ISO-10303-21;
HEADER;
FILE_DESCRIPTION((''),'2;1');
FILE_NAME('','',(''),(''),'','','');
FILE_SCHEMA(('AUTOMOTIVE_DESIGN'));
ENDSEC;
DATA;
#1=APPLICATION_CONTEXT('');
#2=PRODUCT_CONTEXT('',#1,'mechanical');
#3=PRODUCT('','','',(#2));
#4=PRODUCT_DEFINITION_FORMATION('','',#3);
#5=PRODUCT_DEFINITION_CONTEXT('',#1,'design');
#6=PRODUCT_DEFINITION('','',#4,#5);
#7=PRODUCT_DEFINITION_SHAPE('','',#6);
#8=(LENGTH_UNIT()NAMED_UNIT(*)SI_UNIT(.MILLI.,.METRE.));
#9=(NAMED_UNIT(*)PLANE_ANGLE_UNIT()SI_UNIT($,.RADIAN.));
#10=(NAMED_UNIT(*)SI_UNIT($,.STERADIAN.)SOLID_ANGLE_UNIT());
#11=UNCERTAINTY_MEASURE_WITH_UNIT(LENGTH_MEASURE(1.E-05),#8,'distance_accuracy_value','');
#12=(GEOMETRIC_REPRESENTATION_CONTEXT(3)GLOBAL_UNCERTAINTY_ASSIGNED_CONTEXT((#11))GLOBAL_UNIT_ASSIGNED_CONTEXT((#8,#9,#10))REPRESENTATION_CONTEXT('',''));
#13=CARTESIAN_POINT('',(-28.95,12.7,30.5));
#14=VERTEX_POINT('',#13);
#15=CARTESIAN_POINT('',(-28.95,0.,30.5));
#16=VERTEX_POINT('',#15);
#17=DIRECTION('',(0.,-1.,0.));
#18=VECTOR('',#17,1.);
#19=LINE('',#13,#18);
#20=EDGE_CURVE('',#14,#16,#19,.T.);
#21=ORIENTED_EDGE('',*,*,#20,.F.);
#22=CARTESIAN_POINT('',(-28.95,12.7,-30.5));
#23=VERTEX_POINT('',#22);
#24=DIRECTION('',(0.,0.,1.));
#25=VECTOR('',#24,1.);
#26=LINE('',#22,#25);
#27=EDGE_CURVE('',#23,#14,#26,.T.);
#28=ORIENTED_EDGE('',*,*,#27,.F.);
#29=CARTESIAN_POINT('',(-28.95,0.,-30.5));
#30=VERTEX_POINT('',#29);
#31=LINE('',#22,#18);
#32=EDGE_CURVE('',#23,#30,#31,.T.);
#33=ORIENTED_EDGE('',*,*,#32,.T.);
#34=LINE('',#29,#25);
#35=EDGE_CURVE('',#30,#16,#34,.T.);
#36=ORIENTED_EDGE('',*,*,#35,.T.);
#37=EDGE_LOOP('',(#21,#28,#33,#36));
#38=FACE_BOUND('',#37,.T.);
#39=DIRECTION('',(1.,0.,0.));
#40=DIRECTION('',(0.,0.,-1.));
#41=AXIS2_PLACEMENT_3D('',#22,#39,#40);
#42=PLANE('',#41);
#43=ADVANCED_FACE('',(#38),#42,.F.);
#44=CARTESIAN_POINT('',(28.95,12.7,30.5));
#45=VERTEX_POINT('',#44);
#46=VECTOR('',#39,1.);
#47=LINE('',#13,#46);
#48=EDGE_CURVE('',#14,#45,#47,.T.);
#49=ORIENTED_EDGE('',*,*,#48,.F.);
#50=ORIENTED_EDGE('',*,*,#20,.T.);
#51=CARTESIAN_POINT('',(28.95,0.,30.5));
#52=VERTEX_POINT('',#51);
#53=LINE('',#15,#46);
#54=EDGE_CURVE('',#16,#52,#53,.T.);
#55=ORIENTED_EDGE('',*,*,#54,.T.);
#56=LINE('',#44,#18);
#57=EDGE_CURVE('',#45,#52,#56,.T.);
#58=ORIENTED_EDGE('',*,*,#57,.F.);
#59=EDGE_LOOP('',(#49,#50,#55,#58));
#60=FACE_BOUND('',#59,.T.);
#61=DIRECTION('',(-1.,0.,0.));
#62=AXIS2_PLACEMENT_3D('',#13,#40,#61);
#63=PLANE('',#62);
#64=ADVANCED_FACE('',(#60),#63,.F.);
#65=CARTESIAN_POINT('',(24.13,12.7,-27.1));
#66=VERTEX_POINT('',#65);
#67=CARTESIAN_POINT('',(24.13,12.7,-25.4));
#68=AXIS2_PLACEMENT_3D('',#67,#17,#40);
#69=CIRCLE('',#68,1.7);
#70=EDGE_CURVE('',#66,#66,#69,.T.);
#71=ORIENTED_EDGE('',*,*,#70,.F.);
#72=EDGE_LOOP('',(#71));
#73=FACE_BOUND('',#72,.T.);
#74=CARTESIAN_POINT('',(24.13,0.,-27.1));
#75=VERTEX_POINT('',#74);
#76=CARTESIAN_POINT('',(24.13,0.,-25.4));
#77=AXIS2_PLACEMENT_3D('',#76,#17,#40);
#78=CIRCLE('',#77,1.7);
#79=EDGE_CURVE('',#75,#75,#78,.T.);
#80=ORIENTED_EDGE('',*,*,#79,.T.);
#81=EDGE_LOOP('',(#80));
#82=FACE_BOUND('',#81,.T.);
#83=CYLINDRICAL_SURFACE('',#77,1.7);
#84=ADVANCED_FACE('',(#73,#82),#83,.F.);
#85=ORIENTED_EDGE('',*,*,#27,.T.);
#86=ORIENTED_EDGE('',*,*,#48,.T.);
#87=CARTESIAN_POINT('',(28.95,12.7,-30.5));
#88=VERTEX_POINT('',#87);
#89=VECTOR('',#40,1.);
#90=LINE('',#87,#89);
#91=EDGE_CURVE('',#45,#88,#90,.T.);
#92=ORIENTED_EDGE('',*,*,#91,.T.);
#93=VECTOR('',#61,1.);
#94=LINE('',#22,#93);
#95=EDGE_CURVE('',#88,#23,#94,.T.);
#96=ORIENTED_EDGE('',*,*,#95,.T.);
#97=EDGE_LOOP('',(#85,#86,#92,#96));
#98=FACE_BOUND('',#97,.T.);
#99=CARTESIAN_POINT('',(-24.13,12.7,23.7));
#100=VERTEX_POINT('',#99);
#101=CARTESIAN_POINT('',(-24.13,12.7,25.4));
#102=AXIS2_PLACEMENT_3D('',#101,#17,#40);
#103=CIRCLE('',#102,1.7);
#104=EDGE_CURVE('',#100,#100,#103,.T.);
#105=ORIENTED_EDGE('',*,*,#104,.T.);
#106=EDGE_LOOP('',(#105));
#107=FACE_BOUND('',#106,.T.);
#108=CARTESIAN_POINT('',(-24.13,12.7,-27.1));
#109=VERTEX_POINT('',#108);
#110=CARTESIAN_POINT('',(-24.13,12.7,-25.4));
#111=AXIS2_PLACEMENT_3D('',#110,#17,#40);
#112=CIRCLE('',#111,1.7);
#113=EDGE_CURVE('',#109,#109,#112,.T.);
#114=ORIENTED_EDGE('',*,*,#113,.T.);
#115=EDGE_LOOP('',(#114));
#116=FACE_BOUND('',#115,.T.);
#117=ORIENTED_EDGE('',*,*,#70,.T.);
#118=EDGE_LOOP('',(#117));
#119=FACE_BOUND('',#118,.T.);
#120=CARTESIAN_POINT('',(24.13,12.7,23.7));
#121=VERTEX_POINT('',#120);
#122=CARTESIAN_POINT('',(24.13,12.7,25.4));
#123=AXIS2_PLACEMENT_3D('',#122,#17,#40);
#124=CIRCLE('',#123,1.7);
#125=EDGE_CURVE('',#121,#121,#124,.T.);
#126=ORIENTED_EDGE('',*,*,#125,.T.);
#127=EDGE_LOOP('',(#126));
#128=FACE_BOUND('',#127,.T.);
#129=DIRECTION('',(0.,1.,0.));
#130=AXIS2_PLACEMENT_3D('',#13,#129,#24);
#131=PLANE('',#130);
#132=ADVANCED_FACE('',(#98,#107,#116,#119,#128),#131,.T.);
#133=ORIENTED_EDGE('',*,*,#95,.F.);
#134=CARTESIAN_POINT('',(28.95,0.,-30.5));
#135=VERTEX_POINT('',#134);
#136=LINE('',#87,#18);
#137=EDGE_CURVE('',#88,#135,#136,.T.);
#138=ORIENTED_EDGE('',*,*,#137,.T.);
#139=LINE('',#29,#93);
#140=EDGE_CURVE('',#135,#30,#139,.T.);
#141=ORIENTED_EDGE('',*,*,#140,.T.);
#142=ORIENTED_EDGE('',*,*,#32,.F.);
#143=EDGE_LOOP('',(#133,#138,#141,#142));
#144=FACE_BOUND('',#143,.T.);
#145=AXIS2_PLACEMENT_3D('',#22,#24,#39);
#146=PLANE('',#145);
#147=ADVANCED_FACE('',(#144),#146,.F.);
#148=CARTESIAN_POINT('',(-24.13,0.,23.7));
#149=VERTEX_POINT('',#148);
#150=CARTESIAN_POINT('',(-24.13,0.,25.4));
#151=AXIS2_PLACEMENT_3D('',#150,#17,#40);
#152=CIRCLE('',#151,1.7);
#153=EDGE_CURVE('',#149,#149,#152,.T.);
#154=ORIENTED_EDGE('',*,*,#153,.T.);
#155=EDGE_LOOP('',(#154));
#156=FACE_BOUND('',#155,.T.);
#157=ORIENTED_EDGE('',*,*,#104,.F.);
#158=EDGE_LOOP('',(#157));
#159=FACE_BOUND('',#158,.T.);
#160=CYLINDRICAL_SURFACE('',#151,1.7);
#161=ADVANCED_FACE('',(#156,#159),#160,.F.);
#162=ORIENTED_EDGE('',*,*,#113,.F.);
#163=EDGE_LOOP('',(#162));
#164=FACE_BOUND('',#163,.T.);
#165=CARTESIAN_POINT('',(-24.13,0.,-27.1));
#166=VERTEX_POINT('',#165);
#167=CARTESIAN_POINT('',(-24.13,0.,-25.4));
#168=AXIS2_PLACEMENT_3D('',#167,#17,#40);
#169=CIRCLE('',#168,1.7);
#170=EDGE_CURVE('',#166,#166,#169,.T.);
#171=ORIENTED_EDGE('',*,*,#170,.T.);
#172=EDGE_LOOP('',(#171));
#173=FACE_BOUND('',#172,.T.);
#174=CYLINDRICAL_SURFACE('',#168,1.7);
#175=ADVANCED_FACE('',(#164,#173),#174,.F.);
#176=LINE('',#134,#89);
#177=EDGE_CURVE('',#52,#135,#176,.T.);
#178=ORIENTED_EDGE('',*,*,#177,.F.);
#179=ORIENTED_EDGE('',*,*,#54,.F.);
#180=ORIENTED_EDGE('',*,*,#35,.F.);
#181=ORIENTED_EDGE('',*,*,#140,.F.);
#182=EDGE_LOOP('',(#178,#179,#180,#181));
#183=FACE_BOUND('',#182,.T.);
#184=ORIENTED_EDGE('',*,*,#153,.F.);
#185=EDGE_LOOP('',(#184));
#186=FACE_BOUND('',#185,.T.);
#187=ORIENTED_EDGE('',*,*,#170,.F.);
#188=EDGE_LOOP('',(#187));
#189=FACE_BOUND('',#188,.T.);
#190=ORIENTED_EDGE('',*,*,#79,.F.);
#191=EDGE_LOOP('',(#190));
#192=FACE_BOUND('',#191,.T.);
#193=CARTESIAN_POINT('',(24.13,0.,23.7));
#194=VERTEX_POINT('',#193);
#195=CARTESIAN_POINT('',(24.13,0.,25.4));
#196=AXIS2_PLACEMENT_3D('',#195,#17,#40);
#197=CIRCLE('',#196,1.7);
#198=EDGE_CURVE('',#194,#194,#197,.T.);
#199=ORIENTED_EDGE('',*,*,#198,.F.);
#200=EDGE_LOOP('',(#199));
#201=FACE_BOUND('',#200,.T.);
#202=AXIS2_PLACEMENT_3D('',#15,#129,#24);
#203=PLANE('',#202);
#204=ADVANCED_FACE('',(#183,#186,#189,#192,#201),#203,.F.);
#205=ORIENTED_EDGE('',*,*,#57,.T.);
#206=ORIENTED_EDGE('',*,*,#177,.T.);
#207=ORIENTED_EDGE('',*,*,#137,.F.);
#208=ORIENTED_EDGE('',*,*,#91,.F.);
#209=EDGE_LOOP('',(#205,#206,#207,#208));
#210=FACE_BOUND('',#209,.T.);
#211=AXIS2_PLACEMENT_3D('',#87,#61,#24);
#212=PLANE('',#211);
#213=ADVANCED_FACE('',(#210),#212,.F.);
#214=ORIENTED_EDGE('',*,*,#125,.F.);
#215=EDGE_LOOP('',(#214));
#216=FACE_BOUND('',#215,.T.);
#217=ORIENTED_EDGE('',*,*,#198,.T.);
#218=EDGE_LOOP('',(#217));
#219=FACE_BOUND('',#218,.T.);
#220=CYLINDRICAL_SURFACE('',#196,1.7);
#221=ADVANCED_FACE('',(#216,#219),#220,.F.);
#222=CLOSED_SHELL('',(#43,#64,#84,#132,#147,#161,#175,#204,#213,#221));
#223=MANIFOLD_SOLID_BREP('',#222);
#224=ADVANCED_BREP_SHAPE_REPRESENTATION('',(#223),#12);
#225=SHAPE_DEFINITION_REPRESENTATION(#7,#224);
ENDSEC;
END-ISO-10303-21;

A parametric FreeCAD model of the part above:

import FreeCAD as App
import Part
import Sketcher

V = App.Vector
Q = App.Units.Quantity


def add_polygon(sketch, points):
    """Adds a closed chain of lines whose ends are joined by coincident constraints."""
    first, n = sketch.GeometryCount, len(points)
    for a, b in zip(points, points[1:] + points[:1]):
        sketch.addGeometry(Part.LineSegment(App.Vector(*a, 0), App.Vector(*b, 0)), False)
    for i in range(n):
        sketch.addConstraint(Sketcher.Constraint("Coincident", first + i, 2, first + (i + 1) % n, 1))

doc = App.newDocument("Part")
body = doc.addObject("PartDesign::Body", "Body")

sketch1 = body.newObject("Sketcher::SketchObject", "Sketch")
sketch1.AttachmentSupport = (doc.getObject("XZ_Plane"), [""])
sketch1.MapMode = "FlatFace"
add_polygon(sketch1, [(-29, -30), (-29, 30), (29, 30), (29, -30)])
sketch1.addConstraint([
    Sketcher.Constraint("Vertical", 0),
    Sketcher.Constraint("Horizontal", 1),
    Sketcher.Constraint("Vertical", 2),
    Sketcher.Constraint("Horizontal", 3),
    Sketcher.Constraint("Symmetric", 0, 2, 2, 2, -1, 1),
    Sketcher.Constraint("DistanceY", 0, 1, 0, 2, Q("61 mm")),
    Sketcher.Constraint("DistanceX", 1, 1, 1, 2, Q("57.9 mm")),
])
pad1 = body.newObject("PartDesign::Pad", "Pad")
pad1.Profile = sketch1
pad1.Length = 12.7
pad1.Reversed = True

sketch2 = body.newObject("Sketcher::SketchObject", "Sketch001")
sketch2.AttachmentSupport = (doc.getObject("XZ_Plane"), [""])
sketch2.MapMode = "FlatFace"
sketch2.addGeometry([
    Part.Circle(V(24.1, -25.4, 0), V(0, 0, 1), 1.7),
    Part.Circle(V(-24.1, -25.4, 0), V(0, 0, 1), 1.7),
    Part.Circle(V(-24.1, 25.4, 0), V(0, 0, 1), 1.7),
    Part.Circle(V(24.1, 25.4, 0), V(0, 0, 1), 1.7),
], False)
sketch2.addConstraint([
    Sketcher.Constraint("Equal", 0, 1),
    Sketcher.Constraint("Equal", 1, 2),
    Sketcher.Constraint("Equal", 2, 3),
    Sketcher.Constraint("Symmetric", 0, 3, 2, 3, -1, 1),
    Sketcher.Constraint("Symmetric", 1, 3, 3, 3, -1, 1),
    Sketcher.Constraint("Symmetric", 0, 3, 1, 3, -2),
    Sketcher.Constraint("Diameter", 0, Q("3.4 mm")),
    Sketcher.Constraint("DistanceY", 0, 3, -1, 1, Q("25.4 mm")),
    Sketcher.Constraint("DistanceX", -1, 1, 0, 3, Q("24.13 mm")),
])
doc.recompute()
hole = body.newObject("PartDesign::Hole", "Hole")
hole.Profile = sketch2
hole.ThreadType = "None"
hole.Diameter = 3.4
hole.DepthType = "Dimension"
hole.Depth = 12.7
hole.DrillPoint = "Angled"
hole.DrillPointAngle = 118

doc.recompute()
